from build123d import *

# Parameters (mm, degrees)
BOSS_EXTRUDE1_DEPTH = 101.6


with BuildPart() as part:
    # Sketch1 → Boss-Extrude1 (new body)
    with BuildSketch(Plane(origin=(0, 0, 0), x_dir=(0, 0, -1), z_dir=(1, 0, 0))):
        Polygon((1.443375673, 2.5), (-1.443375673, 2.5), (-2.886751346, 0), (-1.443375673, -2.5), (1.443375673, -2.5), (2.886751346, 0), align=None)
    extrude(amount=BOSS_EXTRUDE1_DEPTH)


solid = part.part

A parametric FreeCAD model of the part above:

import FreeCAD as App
import Part
import Sketcher

V = App.Vector
Q = App.Units.Quantity


def add_polygon(sketch, points):
    """Adds a closed chain of lines whose ends are joined by coincident constraints."""
    first, n = sketch.GeometryCount, len(points)
    for a, b in zip(points, points[1:] + points[:1]):
        sketch.addGeometry(Part.LineSegment(App.Vector(*a, 0), App.Vector(*b, 0)), False)
    for i in range(n):
        sketch.addConstraint(Sketcher.Constraint("Coincident", first + i, 2, first + (i + 1) % n, 1))

doc = App.newDocument("Part")
body = doc.addObject("PartDesign::Body", "Body")

# Sketch on YZ plane
sketch1 = body.newObject("Sketcher::SketchObject", "Sketch")
sketch1.AttachmentSupport = (doc.getObject("YZ_Plane"), [""])
sketch1.MapMode = "FlatFace"
add_polygon(sketch1, [(2.5, -1.443376), (2.5, 1.443376), (0, 2.886751), (-2.5, 1.443376), (-2.5, -1.443376), (0, -2.886751)])  # lines 0-5
sketch1.addConstraint(Sketcher.Constraint("Vertical", 0))
sketch1.addConstraint(Sketcher.Constraint("Vertical", 3))
sketch1.addConstraint(Sketcher.Constraint("Symmetric", 0, 2, 3, 2, -1, 1))
sketch1.addConstraint(Sketcher.Constraint("Symmetric", 1, 2, 4, 2, -1, 1))
sketch1.addConstraint(Sketcher.Constraint("PointOnObject", 1, 2, -2))
sketch1.addConstraint(Sketcher.Constraint("Parallel", 2, 5))
sketch1.addConstraint(Sketcher.Constraint("Horizontal", 0, 2, 2, 2))
sketch1.addConstraint(Sketcher.Constraint("Angle", 1, Q("150 deg")))
sketch1.addConstraint(Sketcher.Constraint("DistanceY", 0, 1, 0, 2, Q("2.886751 mm")))
sketch1.addConstraint(Sketcher.Constraint("DistanceX", -1, 1, 0, 2, Q("2.5 mm")))
pad1 = body.newObject("PartDesign::Pad", "Pad")
pad1.Profile = sketch1
pad1.Length = Q("4 in")

doc.recompute()
